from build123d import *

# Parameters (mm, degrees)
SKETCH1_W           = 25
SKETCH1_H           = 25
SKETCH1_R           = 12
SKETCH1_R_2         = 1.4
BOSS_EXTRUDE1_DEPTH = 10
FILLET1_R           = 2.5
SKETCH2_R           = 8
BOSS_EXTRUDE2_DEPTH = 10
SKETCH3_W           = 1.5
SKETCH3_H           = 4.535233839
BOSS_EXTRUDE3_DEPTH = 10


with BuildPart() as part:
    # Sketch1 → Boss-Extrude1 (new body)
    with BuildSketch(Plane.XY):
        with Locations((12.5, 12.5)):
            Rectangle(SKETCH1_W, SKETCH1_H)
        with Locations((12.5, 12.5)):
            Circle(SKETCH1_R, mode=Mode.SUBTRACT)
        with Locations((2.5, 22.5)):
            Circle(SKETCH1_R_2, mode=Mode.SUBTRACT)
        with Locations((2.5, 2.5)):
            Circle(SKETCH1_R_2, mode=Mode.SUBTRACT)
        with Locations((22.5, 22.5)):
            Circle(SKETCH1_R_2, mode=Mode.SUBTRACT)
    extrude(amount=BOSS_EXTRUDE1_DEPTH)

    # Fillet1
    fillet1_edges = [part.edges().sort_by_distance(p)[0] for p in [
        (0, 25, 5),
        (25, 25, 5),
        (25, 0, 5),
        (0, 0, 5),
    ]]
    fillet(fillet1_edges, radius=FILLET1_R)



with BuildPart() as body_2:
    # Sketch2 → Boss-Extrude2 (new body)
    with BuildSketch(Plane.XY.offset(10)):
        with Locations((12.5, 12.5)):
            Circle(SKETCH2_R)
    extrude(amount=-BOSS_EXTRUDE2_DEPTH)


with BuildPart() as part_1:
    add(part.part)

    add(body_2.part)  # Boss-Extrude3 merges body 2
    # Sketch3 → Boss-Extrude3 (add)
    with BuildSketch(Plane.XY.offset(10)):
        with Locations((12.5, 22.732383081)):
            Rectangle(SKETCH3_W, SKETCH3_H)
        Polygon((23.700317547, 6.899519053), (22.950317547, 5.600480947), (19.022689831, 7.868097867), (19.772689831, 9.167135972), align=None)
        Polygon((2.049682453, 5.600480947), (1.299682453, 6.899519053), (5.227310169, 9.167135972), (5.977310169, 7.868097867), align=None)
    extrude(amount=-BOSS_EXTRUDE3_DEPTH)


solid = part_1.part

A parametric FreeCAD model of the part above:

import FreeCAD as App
import Part
import Sketcher
Q = App.Units.Quantity


def edges_at(feature, points):
    """Names of the edges that pass closest to the given points."""
    edges = feature.Shape.Edges
    near = lambda p: min(range(len(edges)), key=lambda i: edges[i].distToShape(Part.Vertex(*p))[0])
    return sorted({f"Edge{near(p) + 1}" for p in points})

doc = App.newDocument("Part")
params = doc.addObject("Spreadsheet::Sheet", "Params")
for row, (alias, value) in enumerate([
    ("sketch1_diameter", "24 mm"),
    ("sketch1_diameter2", "2.8 mm"),
    ("sketch1_width", "25 mm"),
    ("pad1_length", "10 mm"),
    ("fillet_radius", "2.5 mm"),
    ("sketch2_diameter", "16 mm"),
    ("pad2_length", "10 mm"),
    ("sketch3_width", "1.5 mm"),
    ("sketch3_length", "1.5 mm"),
    ("pad3_length", "10 mm"),
], start=1):
    params.set(f"A{row}", alias)
    params.set(f"B{row}", "=" + value)
    params.setAlias(f"B{row}", alias)

body = doc.addObject("PartDesign::Body", "Body")

# Sketch on XY plane
sketch1 = body.newObject("Sketcher::SketchObject", "Sketch")
sketch1.AttachmentSupport = (doc.getObject("XY_Plane"), [""])
sketch1.MapMode = "FlatFace"
sketch1.addGeometry([
    Part.LineSegment(App.Vector(0, 25, 0), App.Vector(0, 0, 0)),  # 0
    Part.LineSegment(App.Vector(0, 0, 0), App.Vector(25, 0, 0)),  # 1
    Part.LineSegment(App.Vector(25, 0, 0), App.Vector(25, 25, 0)),  # 2
    Part.LineSegment(App.Vector(25, 25, 0), App.Vector(0, 25, 0)),  # 3
    Part.Circle(App.Vector(2.5, 2.5, 0), App.Vector(0, 0, 1), 1.4),  # 4
    Part.Circle(App.Vector(2.5, 22.5, 0), App.Vector(0, 0, 1), 1.4),  # 5
    Part.Circle(App.Vector(12.5, 12.5, 0), App.Vector(0, 0, 1), 12),  # 6
    Part.Circle(App.Vector(22.5, 22.5, 0), App.Vector(0, 0, 1), 1.4),  # 7
], False)
sketch1.addConstraint([
    Sketcher.Constraint("Coincident", 0, 2, 1, 1),
    Sketcher.Constraint("Coincident", 1, 2, 2, 1),
    Sketcher.Constraint("Coincident", 2, 2, 3, 1),
    Sketcher.Constraint("Coincident", 3, 2, 0, 1),
    Sketcher.Constraint("Vertical", 0),
    Sketcher.Constraint("Horizontal", 1),
    Sketcher.Constraint("Vertical", 2),
    Sketcher.Constraint("Horizontal", 3),
    Sketcher.Constraint("Coincident", 0, 2, -1, 1),
    Sketcher.Constraint("Equal", 4, 5),
    Sketcher.Constraint("Equal", 5, 7),
    Sketcher.Constraint("Horizontal", 5, 3, 7, 3),
    Sketcher.Constraint("Vertical", 4, 3, 5, 3),
    Sketcher.Constraint("Equal", 3, 0),
    Sketcher.Constraint("Diameter", 6, Q("24 mm")),
    Sketcher.Constraint("Diameter", 4, Q("2.8 mm")),
    Sketcher.Constraint("DistanceX", 1, 1, 1, 2, Q("25 mm")),
    Sketcher.Constraint("DistanceY", 4, 3, 5, 3, Q("20 mm")),
    Sketcher.Constraint("DistanceX", 4, 3, 6, 3, Q("10 mm")),
    Sketcher.Constraint("DistanceY", 4, 3, 6, 3, Q("10 mm")),
    Sketcher.Constraint("DistanceX", 6, 3, 7, 3, Q("10 mm")),
    Sketcher.Constraint("DistanceX", -1, 1, 4, 3, Q("2.5 mm")),
    Sketcher.Constraint("DistanceY", -1, 1, 4, 3, Q("2.5 mm")),
])
sketch1.setExpression("Constraints[14]", "Params.sketch1_diameter")
sketch1.setExpression("Constraints[15]", "Params.sketch1_diameter2")
sketch1.setExpression("Constraints[16]", "Params.sketch1_width")
pad1 = body.newObject("PartDesign::Pad", "Pad")
pad1.Profile = sketch1
pad1.setExpression("Length", "Params.pad1_length")
doc.recompute()

fillet = body.newObject("PartDesign::Fillet", "Fillet")
fillet.Base = (pad1, edges_at(pad1, [
    (0, 25, 5),
    (25, 25, 5),
    (25, 0, 5),
    (0, 0, 5),
]))
fillet.setExpression("Radius", "Params.fillet_radius")
body2 = doc.addObject("PartDesign::Body", "Body001")

# Sketch on XY plane
sketch2 = body2.newObject("Sketcher::SketchObject", "Sketch001")
sketch2.AttachmentSupport = (doc.getObject("XY_Plane001"), [""])
sketch2.MapMode = "FlatFace"
sketch2.AttachmentOffset = App.Placement(App.Vector(0, 0, 10), App.Rotation())
sketch2.addGeometry(Part.Circle(App.Vector(12, 12, 0), App.Vector(0, 0, 1), 8), False)
sketch2.addConstraint([
    Sketcher.Constraint("Diameter", 0, Q("16 mm")),
    Sketcher.Constraint("DistanceX", -1, 1, 0, 3, Q("12.5 mm")),
    Sketcher.Constraint("DistanceY", -1, 1, 0, 3, Q("12.5 mm")),
])
sketch2.setExpression("Constraints[0]", "Params.sketch2_diameter")
pad2 = body2.newObject("PartDesign::Pad", "Pad001")
pad2.Profile = sketch2
pad2.setExpression("Length", "Params.pad2_length")
pad2.Reversed = True
body.AllowCompound = True
doc.recompute()

boolean = body.newObject("PartDesign::Boolean", "Boolean")
boolean.Type = "Fuse"
boolean.addObjects([body2])

# Sketch on XY plane
sketch3 = body.newObject("Sketcher::SketchObject", "Sketch002")
sketch3.AttachmentSupport = (doc.getObject("XY_Plane"), [""])
sketch3.MapMode = "FlatFace"
sketch3.AttachmentOffset = App.Placement(App.Vector(0, 0, 10), App.Rotation())
sketch3.addGeometry([
    Part.LineSegment(App.Vector(11.8, 25, 0), App.Vector(11.8, 20.5, 0)),  # 0
    Part.LineSegment(App.Vector(11.8, 20.5, 0), App.Vector(13.2, 20.5, 0)),  # 1
    Part.LineSegment(App.Vector(13.2, 20.5, 0), App.Vector(13.2, 25, 0)),  # 2
    Part.LineSegment(App.Vector(13.2, 25, 0), App.Vector(11.8, 25, 0)),  # 3
    Part.LineSegment(App.Vector(23, 5.6, 0), App.Vector(23.7, 6.9, 0)),  # 4
    Part.LineSegment(App.Vector(23.7, 6.9, 0), App.Vector(19.8, 9.2, 0)),  # 5
    Part.LineSegment(App.Vector(19.8, 9.2, 0), App.Vector(19, 7.9, 0)),  # 6
    Part.LineSegment(App.Vector(19, 7.9, 0), App.Vector(23, 5.6, 0)),  # 7
    Part.LineSegment(App.Vector(1.3, 6.9, 0), App.Vector(2, 5.6, 0)),  # 8
    Part.LineSegment(App.Vector(2, 5.6, 0), App.Vector(6, 7.9, 0)),  # 9
    Part.LineSegment(App.Vector(6, 7.9, 0), App.Vector(5.2, 9.2, 0)),  # 10
    Part.LineSegment(App.Vector(5.2, 9.2, 0), App.Vector(1.3, 6.9, 0)),  # 11
], False)
sketch3.addConstraint([
    Sketcher.Constraint("Coincident", 0, 2, 1, 1),
    Sketcher.Constraint("Coincident", 1, 2, 2, 1),
    Sketcher.Constraint("Coincident", 2, 2, 3, 1),
    Sketcher.Constraint("Coincident", 3, 2, 0, 1),
    Sketcher.Constraint("Coincident", 4, 2, 5, 1),
    Sketcher.Constraint("Coincident", 5, 2, 6, 1),
    Sketcher.Constraint("Coincident", 6, 2, 7, 1),
    Sketcher.Constraint("Coincident", 7, 2, 4, 1),
    Sketcher.Constraint("Coincident", 8, 2, 9, 1),
    Sketcher.Constraint("Coincident", 9, 2, 10, 1),
    Sketcher.Constraint("Coincident", 10, 2, 11, 1),
    Sketcher.Constraint("Coincident", 11, 2, 8, 1),
    Sketcher.Constraint("Vertical", 0),
    Sketcher.Constraint("Horizontal", 1),
    Sketcher.Constraint("Vertical", 2),
    Sketcher.Constraint("Horizontal", 3),
    Sketcher.Constraint("Perpendicular", 4, 5),
    Sketcher.Constraint("Perpendicular", 5, 6),
    Sketcher.Constraint("Perpendicular", 6, 7),
    Sketcher.Constraint("Perpendicular", 8, 9),
    Sketcher.Constraint("Perpendicular", 9, 10),
    Sketcher.Constraint("Perpendicular", 10, 11),
    Sketcher.Constraint("Horizontal", 7, 2, 8, 2),
    Sketcher.Constraint("Horizontal", 6, 2, 9, 2),
    Sketcher.Constraint("Horizontal", 5, 2, 10, 2),
    Sketcher.Constraint("Equal", 6, 8),
    Sketcher.Constraint("Angle", 4, Q("60 deg")),
    Sketcher.Constraint("DistanceX", 1, 1, 1, 2, Q("1.5 mm")),
    Sketcher.Constraint("DistanceY", -1, 1, 2, 2, Q("25 mm")),
    Sketcher.Constraint("Distance", 4, Q("1.5 mm")),
    Sketcher.Constraint("DistanceX", -1, 1, 0, 2, Q("11.75 mm")),
    Sketcher.Constraint("DistanceY", 0, 2, 0, 1, Q("4.535234 mm")),
    Sketcher.Constraint("DistanceY", -1, 1, 4, 2, Q("6.899519 mm")),
    Sketcher.Constraint("DistanceX", -1, 1, 5, 2, Q("19.77269 mm")),
    Sketcher.Constraint("DistanceX", -1, 1, 9, 2, Q("5.97731 mm")),
    Sketcher.Constraint("DistanceY", 5, 2, 1, 2, Q("11.29763 mm")),
])
sketch3.setExpression("Constraints[27]", "Params.sketch3_width")
sketch3.setExpression("Constraints[29]", "Params.sketch3_length")
pad3 = body.newObject("PartDesign::Pad", "Pad002")
pad3.Profile = sketch3
pad3.setExpression("Length", "Params.pad3_length")
pad3.Reversed = True

doc.recompute()
